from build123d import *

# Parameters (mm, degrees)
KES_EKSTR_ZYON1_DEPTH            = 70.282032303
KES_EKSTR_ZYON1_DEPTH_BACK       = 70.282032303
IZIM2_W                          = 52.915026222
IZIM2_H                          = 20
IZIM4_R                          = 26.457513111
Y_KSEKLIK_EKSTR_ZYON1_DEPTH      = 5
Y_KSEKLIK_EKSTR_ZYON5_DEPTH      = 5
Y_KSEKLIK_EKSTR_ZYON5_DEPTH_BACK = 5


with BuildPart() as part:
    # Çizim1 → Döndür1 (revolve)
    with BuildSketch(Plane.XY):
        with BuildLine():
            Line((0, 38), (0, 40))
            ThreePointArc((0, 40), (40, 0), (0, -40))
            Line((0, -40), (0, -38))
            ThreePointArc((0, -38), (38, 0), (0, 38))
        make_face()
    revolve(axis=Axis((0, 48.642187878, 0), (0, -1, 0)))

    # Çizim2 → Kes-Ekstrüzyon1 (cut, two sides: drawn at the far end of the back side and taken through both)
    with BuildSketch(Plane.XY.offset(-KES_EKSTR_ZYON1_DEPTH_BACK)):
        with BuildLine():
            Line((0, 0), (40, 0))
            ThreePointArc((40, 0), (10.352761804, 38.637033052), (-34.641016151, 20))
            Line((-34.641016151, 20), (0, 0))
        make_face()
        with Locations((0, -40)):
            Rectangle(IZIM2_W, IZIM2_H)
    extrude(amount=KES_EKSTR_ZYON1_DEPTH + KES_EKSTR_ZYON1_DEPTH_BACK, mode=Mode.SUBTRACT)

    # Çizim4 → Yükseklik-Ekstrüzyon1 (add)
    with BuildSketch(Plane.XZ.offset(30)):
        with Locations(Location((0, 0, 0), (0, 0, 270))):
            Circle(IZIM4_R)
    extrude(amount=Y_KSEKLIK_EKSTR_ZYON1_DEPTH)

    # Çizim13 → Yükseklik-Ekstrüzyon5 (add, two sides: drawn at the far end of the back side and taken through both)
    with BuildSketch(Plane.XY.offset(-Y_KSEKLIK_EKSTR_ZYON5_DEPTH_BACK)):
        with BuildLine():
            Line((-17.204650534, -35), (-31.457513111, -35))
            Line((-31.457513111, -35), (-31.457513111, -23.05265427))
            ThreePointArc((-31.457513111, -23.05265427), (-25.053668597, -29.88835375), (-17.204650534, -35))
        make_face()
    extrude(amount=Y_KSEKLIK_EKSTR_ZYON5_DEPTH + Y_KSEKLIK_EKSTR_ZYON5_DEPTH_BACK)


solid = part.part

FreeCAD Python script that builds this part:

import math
import FreeCAD as App
import Part
import Sketcher
from FreeCAD import Vector
Q = App.Units.Quantity

doc = App.newDocument("Part")
params = doc.addObject("Spreadsheet::Sheet", "Params")
for row, (alias, value) in enumerate([
    ("sketch1_radius", "38 mm"),
    ("sketch1_radius2", "40 mm"),
    ("revolution_angle", "360 deg"),
    ("sketch2_radius", "40 mm"),
    ("sketch2_height", "20 mm"),
    ("pad1_length", "5 mm"),
    ("sketch4_radius", "39 mm"),
    ("pad2_length", "5 mm"),
    ("pad2_length2", "5 mm"),
], start=1):
    params.set(f"A{row}", alias)
    params.set(f"B{row}", "=" + value)
    params.setAlias(f"B{row}", alias)

body = doc.addObject("PartDesign::Body", "Body")

sketch1 = body.newObject("Sketcher::SketchObject", "Sketch")
sketch1.AttachmentSupport = (doc.getObject("XY_Plane"), [""])
sketch1.MapMode = "FlatFace"
sketch1.addGeometry(Part.LineSegment(Vector(0, 40, 0), Vector(0, 38, 0)), False)
sketch1.addGeometry(Part.ArcOfCircle(Part.Circle(Vector(0, 0, 0), Vector(0, 0, 1), 38), math.radians(-90), math.radians(90)), False)
sketch1.addGeometry(Part.LineSegment(Vector(0, -38, 0), Vector(0, -40, 0)), False)
sketch1.addGeometry(Part.ArcOfCircle(Part.Circle(Vector(0, 0, 0), Vector(0, 0, 1), 40), math.radians(-90), math.radians(90)), False)
sketch1.addConstraint(Sketcher.Constraint("Coincident", 0, 2, 1, 2))
sketch1.addConstraint(Sketcher.Constraint("Coincident", 1, 1, 2, 1))
sketch1.addConstraint(Sketcher.Constraint("Coincident", 2, 2, 3, 1))
sketch1.addConstraint(Sketcher.Constraint("Coincident", 3, 2, 0, 1))
sketch1.addConstraint(Sketcher.Constraint("Vertical", 0))
sketch1.addConstraint(Sketcher.Constraint("Vertical", 2))
sketch1.addConstraint(Sketcher.Constraint("Coincident", 1, 3, -1, 1))
sketch1.addConstraint(Sketcher.Constraint("Coincident", 3, 3, -1, 1))
sketch1.addConstraint(Sketcher.Constraint("PointOnObject", 0, 2, -2))
sketch1.addConstraint(Sketcher.Constraint("PointOnObject", 1, 1, -2))
sketch1.addConstraint(Sketcher.Constraint("Radius", 1, Q("38 mm")))
sketch1.addConstraint(Sketcher.Constraint("Radius", 3, Q("40 mm")))
sketch1.setExpression("Constraints[10]", "Params.sketch1_radius")
sketch1.setExpression("Constraints[11]", "Params.sketch1_radius2")
revolution = body.newObject("PartDesign::Revolution", "Revolution")
revolution.Profile = sketch1
revolution.ReferenceAxis = (sketch1, ["V_Axis"])
revolution.setExpression("Angle", "Params.revolution_angle")

sketch2 = body.newObject("Sketcher::SketchObject", "Sketch001")
sketch2.AttachmentSupport = (doc.getObject("XY_Plane"), [""])
sketch2.MapMode = "FlatFace"
sketch2.addGeometry(Part.LineSegment(Vector(0, 0, 0), Vector(40, 0, 0)), False)
sketch2.addGeometry(Part.ArcOfCircle(Part.Circle(Vector(0, 0, 0), Vector(0, 0, 1), 40), math.radians(0), math.radians(150)), False)
sketch2.addGeometry(Part.LineSegment(Vector(-35, 20, 0), Vector(0, 0, 0)), False)
sketch2.addGeometry(Part.LineSegment(Vector(-26, -30, 0), Vector(-26, -50, 0)), False)
sketch2.addGeometry(Part.LineSegment(Vector(-26, -50, 0), Vector(26, -50, 0)), False)
sketch2.addGeometry(Part.LineSegment(Vector(26, -50, 0), Vector(26, -30, 0)), False)
sketch2.addGeometry(Part.LineSegment(Vector(26, -30, 0), Vector(-26, -30, 0)), False)
sketch2.addConstraint(Sketcher.Constraint("Coincident", 0, 2, 1, 1))
sketch2.addConstraint(Sketcher.Constraint("Coincident", 1, 2, 2, 1))
sketch2.addConstraint(Sketcher.Constraint("Coincident", 2, 2, 0, 1))
sketch2.addConstraint(Sketcher.Constraint("Coincident", 3, 2, 4, 1))
sketch2.addConstraint(Sketcher.Constraint("Coincident", 4, 2, 5, 1))
sketch2.addConstraint(Sketcher.Constraint("Coincident", 5, 2, 6, 1))
sketch2.addConstraint(Sketcher.Constraint("Coincident", 6, 2, 3, 1))
sketch2.addConstraint(Sketcher.Constraint("Horizontal", 0))
sketch2.addConstraint(Sketcher.Constraint("Vertical", 3))
sketch2.addConstraint(Sketcher.Constraint("Horizontal", 4))
sketch2.addConstraint(Sketcher.Constraint("Vertical", 5))
sketch2.addConstraint(Sketcher.Constraint("Horizontal", 6))
sketch2.addConstraint(Sketcher.Constraint("Coincident", 1, 3, -1, 1))
sketch2.addConstraint(Sketcher.Constraint("Coincident", 2, 2, -1, 1))
sketch2.addConstraint(Sketcher.Constraint("Radius", 1, Q("40 mm")))
sketch2.addConstraint(Sketcher.Constraint("DistanceY", 3, 2, 3, 1, Q("20 mm")))
sketch2.addConstraint(Sketcher.Constraint("Angle", 2, Q("-30 deg")))
sketch2.addConstraint(Sketcher.Constraint("DistanceY", 3, 2, -1, 1, Q("50 mm")))
sketch2.addConstraint(Sketcher.Constraint("DistanceX", 4, 1, 4, 2, Q("52.915026 mm")))
sketch2.addConstraint(Sketcher.Constraint("DistanceX", 1, 2, 4, 2, Q("61.098529 mm")))
sketch2.setExpression("Constraints[14]", "Params.sketch2_radius")
sketch2.setExpression("Constraints[15]", "Params.sketch2_height")
pocket1 = body.newObject("PartDesign::Pocket", "Pocket")
pocket1.Profile = sketch2
pocket1.Type = "ThroughAll"
pocket1.Midplane = True

sketch3 = body.newObject("Sketcher::SketchObject", "Sketch002")
sketch3.AttachmentSupport = (doc.getObject("XZ_Plane"), [""])
sketch3.MapMode = "FlatFace"
sketch3.AttachmentOffset = App.Placement(Vector(0, 0, 30), App.Rotation())
sketch3.addGeometry(Part.Circle(Vector(0, 0, 0), Vector(0, 0, 1), 26), False)
sketch3.addConstraint(Sketcher.Constraint("Coincident", 0, 3, -1, 1))
sketch3.addConstraint(Sketcher.Constraint("Diameter", 0, Q("52.915026 mm")))
pad1 = body.newObject("PartDesign::Pad", "Pad")
pad1.Profile = sketch3
pad1.setExpression("Length", "Params.pad1_length")

sketch4 = body.newObject("Sketcher::SketchObject", "Sketch003")
sketch4.AttachmentSupport = (doc.getObject("XY_Plane"), [""])
sketch4.MapMode = "FlatFace"
sketch4.addGeometry(Part.LineSegment(Vector(-31, -35, 0), Vector(-17, -35, 0)), False)
sketch4.addGeometry(Part.ArcOfCircle(Part.Circle(Vector(0, 0, 0), Vector(0, 0, 1), 39), math.radians(-144), math.radians(-116)), False)
sketch4.addGeometry(Part.LineSegment(Vector(-31, -23, 0), Vector(-31, -35, 0)), False)
sketch4.addConstraint(Sketcher.Constraint("Coincident", 0, 2, 1, 2))
sketch4.addConstraint(Sketcher.Constraint("Coincident", 1, 1, 2, 1))
sketch4.addConstraint(Sketcher.Constraint("Coincident", 2, 2, 0, 1))
sketch4.addConstraint(Sketcher.Constraint("Horizontal", 0))
sketch4.addConstraint(Sketcher.Constraint("Vertical", 2))
sketch4.addConstraint(Sketcher.Constraint("Coincident", 1, 3, -1, 1))
sketch4.addConstraint(Sketcher.Constraint("Radius", 1, Q("39 mm")))
sketch4.addConstraint(Sketcher.Constraint("DistanceY", 0, 2, -1, 1, Q("35 mm")))
sketch4.addConstraint(Sketcher.Constraint("DistanceX", 0, 1, 0, 2, Q("14.252863 mm")))
sketch4.setExpression("Constraints[6]", "Params.sketch4_radius")
pad2 = body.newObject("PartDesign::Pad", "Pad001")
pad2.Profile = sketch4
pad2.Type = "TwoLengths"
pad2.setExpression("Length", "Params.pad2_length")
pad2.setExpression("Length2", "Params.pad2_length2")

doc.recompute()
